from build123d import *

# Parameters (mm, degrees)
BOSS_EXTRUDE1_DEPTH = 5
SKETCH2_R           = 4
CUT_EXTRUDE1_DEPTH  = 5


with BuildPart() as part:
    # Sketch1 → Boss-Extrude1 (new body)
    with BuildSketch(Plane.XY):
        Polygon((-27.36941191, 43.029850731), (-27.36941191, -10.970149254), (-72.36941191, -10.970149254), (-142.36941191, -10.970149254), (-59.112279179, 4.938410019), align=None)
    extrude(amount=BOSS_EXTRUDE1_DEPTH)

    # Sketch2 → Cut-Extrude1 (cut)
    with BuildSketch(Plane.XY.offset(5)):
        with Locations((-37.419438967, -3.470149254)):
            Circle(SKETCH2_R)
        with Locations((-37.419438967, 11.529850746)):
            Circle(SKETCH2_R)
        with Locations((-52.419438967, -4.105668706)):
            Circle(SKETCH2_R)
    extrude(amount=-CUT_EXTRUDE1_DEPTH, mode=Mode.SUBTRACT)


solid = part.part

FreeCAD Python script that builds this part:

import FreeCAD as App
import Part
import Sketcher
from FreeCAD import Vector
Q = App.Units.Quantity


def add_polygon(sketch, points):
    """Adds a closed chain of lines whose ends are joined by coincident constraints."""
    first, n = sketch.GeometryCount, len(points)
    for a, b in zip(points, points[1:] + points[:1]):
        sketch.addGeometry(Part.LineSegment(App.Vector(*a, 0), App.Vector(*b, 0)), False)
    for i in range(n):
        sketch.addConstraint(Sketcher.Constraint("Coincident", first + i, 2, first + (i + 1) % n, 1))

doc = App.newDocument("Part")
params = doc.addObject("Spreadsheet::Sheet", "Params")
for row, (alias, value) in enumerate([
    ("sketch1_width", "115 mm"),
    ("sketch1_height", "54 mm"),
    ("pad1_length", "5 mm"),
    ("sketch2_diameter", "8 mm"),
    ("pocket1_length", "5 mm"),
], start=1):
    params.set(f"A{row}", alias)
    params.set(f"B{row}", "=" + value)
    params.setAlias(f"B{row}", alias)

body = doc.addObject("PartDesign::Body", "Body")

sketch1 = body.newObject("Sketcher::SketchObject", "Sketch")
sketch1.AttachmentSupport = (doc.getObject("XY_Plane"), [""])
sketch1.MapMode = "FlatFace"
add_polygon(sketch1, [(-27, -11), (-27, 43), (-59, 5), (-142, -11)])
sketch1.addConstraint(Sketcher.Constraint("Vertical", 0))
sketch1.addConstraint(Sketcher.Constraint("Horizontal", 3))
sketch1.addConstraint(Sketcher.Constraint("DistanceX", 3, 1, 3, 2, Q("115 mm")))
sketch1.addConstraint(Sketcher.Constraint("DistanceY", 0, 1, 0, 2, Q("54 mm")))
sketch1.addConstraint(Sketcher.Constraint("Distance", 2, Q("84.763391 mm")))
sketch1.addConstraint(Sketcher.Constraint("DistanceX", 0, 2, -1, 1, Q("27.369412 mm")))
sketch1.addConstraint(Sketcher.Constraint("DistanceY", -1, 1, 0, 2, Q("43.029851 mm")))
sketch1.addConstraint(Sketcher.Constraint("DistanceX", 1, 2, -1, 1, Q("59.112279 mm")))
sketch1.setExpression("Constraints[6]", "Params.sketch1_width")
sketch1.setExpression("Constraints[7]", "Params.sketch1_height")
pad1 = body.newObject("PartDesign::Pad", "Pad")
pad1.Profile = sketch1
pad1.setExpression("Length", "Params.pad1_length")

sketch2 = body.newObject("Sketcher::SketchObject", "Sketch001")
sketch2.AttachmentSupport = (doc.getObject("XY_Plane"), [""])
sketch2.MapMode = "FlatFace"
sketch2.AttachmentOffset = App.Placement(Vector(0, 0, 5), App.Rotation())
sketch2.addGeometry(Part.Circle(Vector(-37.4, -3.5, 0), Vector(0, 0, 1), 4), False)
sketch2.addGeometry(Part.Circle(Vector(-37.4, 11.5, 0), Vector(0, 0, 1), 4), False)
sketch2.addGeometry(Part.Circle(Vector(-52.4, -4.1, 0), Vector(0, 0, 1), 4), False)
sketch2.addConstraint(Sketcher.Constraint("Equal", 0, 1))
sketch2.addConstraint(Sketcher.Constraint("Equal", 1, 2))
sketch2.addConstraint(Sketcher.Constraint("Vertical", 0, 3, 1, 3))
sketch2.addConstraint(Sketcher.Constraint("Diameter", 0, Q("8 mm")))
sketch2.addConstraint(Sketcher.Constraint("DistanceY", 0, 3, 1, 3, Q("15 mm")))
sketch2.addConstraint(Sketcher.Constraint("DistanceX", 2, 3, 0, 3, Q("15 mm")))
sketch2.addConstraint(Sketcher.Constraint("DistanceX", 0, 3, -1, 1, Q("37.419439 mm")))
sketch2.addConstraint(Sketcher.Constraint("DistanceY", 0, 3, -1, 1, Q("3.470149 mm")))
sketch2.addConstraint(Sketcher.Constraint("DistanceY", 2, 3, -1, 1, Q("4.105669 mm")))
sketch2.setExpression("Constraints[3]", "Params.sketch2_diameter")
pocket1 = body.newObject("PartDesign::Pocket", "Pocket")
pocket1.Profile = sketch2
pocket1.setExpression("Length", "Params.pocket1_length")

doc.recompute()
